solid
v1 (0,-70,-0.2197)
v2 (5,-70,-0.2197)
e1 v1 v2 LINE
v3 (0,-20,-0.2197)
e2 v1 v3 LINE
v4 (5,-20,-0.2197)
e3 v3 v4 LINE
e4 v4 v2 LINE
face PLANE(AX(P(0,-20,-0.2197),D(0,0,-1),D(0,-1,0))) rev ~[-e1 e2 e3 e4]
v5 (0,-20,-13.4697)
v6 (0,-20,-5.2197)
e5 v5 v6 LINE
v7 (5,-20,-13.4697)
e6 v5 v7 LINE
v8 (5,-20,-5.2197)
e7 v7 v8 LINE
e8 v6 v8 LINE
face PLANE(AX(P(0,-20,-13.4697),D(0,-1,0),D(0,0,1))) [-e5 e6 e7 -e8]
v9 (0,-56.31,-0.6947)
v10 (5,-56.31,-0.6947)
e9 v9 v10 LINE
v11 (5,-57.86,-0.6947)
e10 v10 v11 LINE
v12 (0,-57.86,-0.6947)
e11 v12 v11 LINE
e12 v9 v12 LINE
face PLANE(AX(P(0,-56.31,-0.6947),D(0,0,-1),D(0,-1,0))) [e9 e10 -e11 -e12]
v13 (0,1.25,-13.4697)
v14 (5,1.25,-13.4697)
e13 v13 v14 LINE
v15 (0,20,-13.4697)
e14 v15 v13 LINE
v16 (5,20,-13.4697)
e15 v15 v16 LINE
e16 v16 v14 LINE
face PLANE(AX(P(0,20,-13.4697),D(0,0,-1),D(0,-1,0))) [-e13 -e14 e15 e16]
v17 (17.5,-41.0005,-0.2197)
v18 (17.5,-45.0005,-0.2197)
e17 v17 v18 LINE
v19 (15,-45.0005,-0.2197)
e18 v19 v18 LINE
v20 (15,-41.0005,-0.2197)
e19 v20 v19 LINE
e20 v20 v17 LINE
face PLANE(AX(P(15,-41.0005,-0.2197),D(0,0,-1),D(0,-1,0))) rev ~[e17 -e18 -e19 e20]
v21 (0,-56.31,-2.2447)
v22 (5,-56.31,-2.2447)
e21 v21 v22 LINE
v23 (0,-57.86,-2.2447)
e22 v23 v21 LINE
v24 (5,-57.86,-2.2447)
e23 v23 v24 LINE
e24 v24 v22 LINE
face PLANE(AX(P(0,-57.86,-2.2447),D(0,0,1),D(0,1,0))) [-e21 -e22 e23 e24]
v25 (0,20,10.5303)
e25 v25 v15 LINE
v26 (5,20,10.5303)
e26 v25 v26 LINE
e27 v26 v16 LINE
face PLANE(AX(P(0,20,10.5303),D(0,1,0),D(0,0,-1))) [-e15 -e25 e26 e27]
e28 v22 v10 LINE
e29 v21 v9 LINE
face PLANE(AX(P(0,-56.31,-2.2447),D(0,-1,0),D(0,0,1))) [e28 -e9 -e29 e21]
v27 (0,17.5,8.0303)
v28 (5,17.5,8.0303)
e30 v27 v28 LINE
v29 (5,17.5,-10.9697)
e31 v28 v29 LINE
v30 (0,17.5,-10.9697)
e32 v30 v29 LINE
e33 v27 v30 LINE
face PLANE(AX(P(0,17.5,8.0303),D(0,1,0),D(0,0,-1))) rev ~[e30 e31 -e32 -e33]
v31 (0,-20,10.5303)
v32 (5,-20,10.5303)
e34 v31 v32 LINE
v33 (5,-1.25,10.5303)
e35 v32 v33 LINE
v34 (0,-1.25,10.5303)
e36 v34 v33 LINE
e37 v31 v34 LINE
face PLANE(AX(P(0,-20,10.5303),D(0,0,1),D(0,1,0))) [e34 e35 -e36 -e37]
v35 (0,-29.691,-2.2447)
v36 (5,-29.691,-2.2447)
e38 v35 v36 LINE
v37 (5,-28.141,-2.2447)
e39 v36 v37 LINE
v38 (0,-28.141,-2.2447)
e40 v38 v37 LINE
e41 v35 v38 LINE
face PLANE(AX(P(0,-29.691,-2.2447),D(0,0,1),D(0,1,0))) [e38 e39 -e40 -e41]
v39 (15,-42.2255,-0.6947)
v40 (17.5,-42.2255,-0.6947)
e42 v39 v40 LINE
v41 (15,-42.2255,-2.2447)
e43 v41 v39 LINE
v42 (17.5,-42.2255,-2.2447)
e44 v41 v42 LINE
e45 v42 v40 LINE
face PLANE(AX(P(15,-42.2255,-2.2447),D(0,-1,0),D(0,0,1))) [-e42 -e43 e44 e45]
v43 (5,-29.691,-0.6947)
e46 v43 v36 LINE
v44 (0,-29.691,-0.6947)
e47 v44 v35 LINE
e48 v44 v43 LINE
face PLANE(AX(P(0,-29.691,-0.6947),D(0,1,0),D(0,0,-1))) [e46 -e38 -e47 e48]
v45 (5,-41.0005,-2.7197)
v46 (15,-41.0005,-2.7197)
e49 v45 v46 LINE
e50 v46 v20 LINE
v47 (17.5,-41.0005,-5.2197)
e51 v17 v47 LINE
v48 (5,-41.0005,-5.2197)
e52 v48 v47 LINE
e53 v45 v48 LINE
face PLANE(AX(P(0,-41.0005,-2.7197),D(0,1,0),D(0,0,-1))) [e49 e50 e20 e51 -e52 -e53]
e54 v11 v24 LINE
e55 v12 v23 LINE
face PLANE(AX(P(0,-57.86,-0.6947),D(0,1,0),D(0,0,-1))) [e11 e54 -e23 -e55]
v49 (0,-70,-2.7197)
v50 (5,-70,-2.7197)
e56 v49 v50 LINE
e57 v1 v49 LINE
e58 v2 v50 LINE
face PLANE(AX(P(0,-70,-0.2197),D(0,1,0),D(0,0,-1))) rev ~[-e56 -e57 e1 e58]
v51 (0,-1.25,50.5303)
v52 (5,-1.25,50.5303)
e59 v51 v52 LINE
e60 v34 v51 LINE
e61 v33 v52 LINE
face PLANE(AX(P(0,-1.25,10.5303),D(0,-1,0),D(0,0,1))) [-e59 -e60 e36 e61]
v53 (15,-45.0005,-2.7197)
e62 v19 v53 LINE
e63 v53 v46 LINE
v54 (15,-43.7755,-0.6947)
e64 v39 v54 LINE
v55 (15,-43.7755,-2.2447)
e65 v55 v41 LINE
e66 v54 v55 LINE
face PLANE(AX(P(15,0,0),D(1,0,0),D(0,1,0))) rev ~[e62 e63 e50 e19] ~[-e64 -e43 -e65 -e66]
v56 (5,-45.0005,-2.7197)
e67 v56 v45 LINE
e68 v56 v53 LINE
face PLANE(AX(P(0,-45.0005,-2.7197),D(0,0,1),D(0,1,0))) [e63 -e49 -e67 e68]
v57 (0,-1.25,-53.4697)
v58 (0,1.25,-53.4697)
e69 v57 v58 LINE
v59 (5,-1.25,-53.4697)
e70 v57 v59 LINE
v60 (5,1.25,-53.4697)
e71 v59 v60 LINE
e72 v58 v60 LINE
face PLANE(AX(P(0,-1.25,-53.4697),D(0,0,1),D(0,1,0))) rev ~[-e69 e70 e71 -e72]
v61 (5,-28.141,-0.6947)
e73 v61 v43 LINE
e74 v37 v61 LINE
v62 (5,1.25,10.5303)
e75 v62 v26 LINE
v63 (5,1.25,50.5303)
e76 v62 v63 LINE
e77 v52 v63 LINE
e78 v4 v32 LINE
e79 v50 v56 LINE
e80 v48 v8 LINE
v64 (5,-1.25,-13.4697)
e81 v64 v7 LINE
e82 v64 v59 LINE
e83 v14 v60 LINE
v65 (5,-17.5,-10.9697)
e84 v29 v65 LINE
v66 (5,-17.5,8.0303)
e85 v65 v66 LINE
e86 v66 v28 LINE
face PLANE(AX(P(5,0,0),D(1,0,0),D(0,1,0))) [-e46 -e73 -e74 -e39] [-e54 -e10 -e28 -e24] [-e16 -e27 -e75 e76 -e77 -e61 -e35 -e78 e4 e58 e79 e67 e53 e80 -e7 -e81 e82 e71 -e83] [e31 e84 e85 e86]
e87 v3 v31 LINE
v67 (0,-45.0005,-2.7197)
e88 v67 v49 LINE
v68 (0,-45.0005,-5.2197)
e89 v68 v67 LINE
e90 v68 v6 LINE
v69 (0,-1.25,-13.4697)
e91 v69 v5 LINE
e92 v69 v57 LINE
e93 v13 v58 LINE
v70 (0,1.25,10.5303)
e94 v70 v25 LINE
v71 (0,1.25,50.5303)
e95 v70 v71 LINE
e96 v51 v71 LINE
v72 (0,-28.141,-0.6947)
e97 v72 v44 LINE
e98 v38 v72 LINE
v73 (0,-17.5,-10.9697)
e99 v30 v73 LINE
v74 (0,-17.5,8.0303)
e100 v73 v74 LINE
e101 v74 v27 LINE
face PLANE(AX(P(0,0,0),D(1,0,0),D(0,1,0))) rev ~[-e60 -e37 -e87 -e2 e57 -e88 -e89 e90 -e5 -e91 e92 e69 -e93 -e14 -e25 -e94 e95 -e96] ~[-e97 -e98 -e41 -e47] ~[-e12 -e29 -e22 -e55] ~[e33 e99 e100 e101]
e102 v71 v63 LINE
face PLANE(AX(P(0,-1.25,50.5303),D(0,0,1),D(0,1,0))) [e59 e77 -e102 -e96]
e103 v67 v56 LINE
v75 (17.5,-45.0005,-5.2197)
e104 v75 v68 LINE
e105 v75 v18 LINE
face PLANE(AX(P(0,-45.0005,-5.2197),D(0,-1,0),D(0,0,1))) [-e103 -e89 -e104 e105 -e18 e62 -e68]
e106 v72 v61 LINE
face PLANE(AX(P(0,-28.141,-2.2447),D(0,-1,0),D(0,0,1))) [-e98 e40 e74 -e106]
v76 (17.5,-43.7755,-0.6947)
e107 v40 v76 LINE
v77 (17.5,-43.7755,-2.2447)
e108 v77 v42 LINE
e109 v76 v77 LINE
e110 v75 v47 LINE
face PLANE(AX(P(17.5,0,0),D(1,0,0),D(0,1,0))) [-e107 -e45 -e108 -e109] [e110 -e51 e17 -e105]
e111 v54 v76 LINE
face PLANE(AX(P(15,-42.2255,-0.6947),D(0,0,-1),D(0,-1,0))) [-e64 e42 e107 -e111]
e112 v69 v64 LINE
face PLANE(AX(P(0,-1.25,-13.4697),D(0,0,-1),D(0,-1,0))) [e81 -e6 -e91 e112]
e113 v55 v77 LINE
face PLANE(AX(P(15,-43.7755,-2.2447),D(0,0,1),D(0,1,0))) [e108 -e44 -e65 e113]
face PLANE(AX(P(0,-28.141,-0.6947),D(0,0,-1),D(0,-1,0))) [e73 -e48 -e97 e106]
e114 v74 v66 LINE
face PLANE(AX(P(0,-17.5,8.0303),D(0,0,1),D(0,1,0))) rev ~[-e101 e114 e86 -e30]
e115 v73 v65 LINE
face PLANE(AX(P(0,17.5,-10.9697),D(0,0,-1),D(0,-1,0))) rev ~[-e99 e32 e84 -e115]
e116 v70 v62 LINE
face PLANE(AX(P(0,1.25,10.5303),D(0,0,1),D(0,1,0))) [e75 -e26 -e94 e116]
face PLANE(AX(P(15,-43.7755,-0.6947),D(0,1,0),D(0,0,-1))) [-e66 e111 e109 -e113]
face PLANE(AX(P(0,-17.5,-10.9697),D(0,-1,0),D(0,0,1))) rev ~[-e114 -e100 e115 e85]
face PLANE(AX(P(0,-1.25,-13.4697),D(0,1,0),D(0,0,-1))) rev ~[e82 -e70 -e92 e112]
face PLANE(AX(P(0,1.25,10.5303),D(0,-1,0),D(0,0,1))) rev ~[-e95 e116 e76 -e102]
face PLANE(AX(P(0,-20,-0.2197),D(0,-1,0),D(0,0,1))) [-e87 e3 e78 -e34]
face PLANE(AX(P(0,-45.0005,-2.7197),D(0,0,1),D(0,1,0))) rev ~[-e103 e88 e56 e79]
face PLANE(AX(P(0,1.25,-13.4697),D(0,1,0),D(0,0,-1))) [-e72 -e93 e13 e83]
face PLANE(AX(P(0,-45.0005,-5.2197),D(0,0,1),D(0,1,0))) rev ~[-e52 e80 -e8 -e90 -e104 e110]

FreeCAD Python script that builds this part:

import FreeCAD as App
import Part
import Sketcher
from FreeCAD import Vector


def add_polygon(sketch, points):
    """Adds a closed chain of lines whose ends are joined by coincident constraints."""
    first, n = sketch.GeometryCount, len(points)
    for a, b in zip(points, points[1:] + points[:1]):
        sketch.addGeometry(Part.LineSegment(App.Vector(*a, 0), App.Vector(*b, 0)), False)
    for i in range(n):
        sketch.addConstraint(Sketcher.Constraint("Coincident", first + i, 2, first + (i + 1) % n, 1))

doc = App.newDocument("Part")
body = doc.addObject("PartDesign::Body", "Body")

sketch1 = doc.addObject("Sketcher::SketchObject", "Sketch")
body.addObject(sketch1)
sketch1.AttachmentSupport = (doc.YZ_Plane, [""])
sketch1.MapMode = "FlatFace"
add_polygon(sketch1, [(-20, -5.2197), (-20, -13.4697), (-1.25, -13.4697), (-1.25, -53.4697), (1.25, -53.4697), (1.25, -13.4697), (20, -13.4697), (20, 10.5303), (1.25, 10.5303), (1.25, 50.5303), (-1.25, 50.5303), (-1.25, 10.5303), (-20, 10.5303), (-20, -0.2197), (-70, -0.2197), (-70, -2.7197), (-41.0005, -2.7197), (-41.0005, -5.2197)])
add_polygon(sketch1, [(17.5, -10.9697), (-17.5, -10.9697), (-17.5, 8.0303), (17.5, 8.0303)])
add_polygon(sketch1, [(-28.141, -2.2447), (-29.691, -2.2447), (-29.691, -0.6947), (-28.141, -0.6947)])
add_polygon(sketch1, [(-56.31, -0.6947), (-56.31, -2.2447), (-57.86, -2.2447), (-57.86, -0.6947)])
sketch1.addConstraint(Sketcher.Constraint("Vertical", 0))
sketch1.addConstraint(Sketcher.Constraint("Horizontal", 1))
sketch1.addConstraint(Sketcher.Constraint("Vertical", 2))
sketch1.addConstraint(Sketcher.Constraint("Horizontal", 3))
sketch1.addConstraint(Sketcher.Constraint("Vertical", 4))
sketch1.addConstraint(Sketcher.Constraint("Horizontal", 5))
sketch1.addConstraint(Sketcher.Constraint("Vertical", 6))
sketch1.addConstraint(Sketcher.Constraint("Horizontal", 7))
sketch1.addConstraint(Sketcher.Constraint("Vertical", 8))
sketch1.addConstraint(Sketcher.Constraint("Horizontal", 9))
sketch1.addConstraint(Sketcher.Constraint("Vertical", 10))
sketch1.addConstraint(Sketcher.Constraint("Horizontal", 11))
sketch1.addConstraint(Sketcher.Constraint("Vertical", 12))
sketch1.addConstraint(Sketcher.Constraint("Horizontal", 13))
sketch1.addConstraint(Sketcher.Constraint("Vertical", 14))
sketch1.addConstraint(Sketcher.Constraint("Horizontal", 15))
sketch1.addConstraint(Sketcher.Constraint("Vertical", 16))
sketch1.addConstraint(Sketcher.Constraint("Horizontal", 17))
sketch1.addConstraint(Sketcher.Constraint("Horizontal", 18))
sketch1.addConstraint(Sketcher.Constraint("Vertical", 19))
sketch1.addConstraint(Sketcher.Constraint("Horizontal", 20))
sketch1.addConstraint(Sketcher.Constraint("Vertical", 21))
sketch1.addConstraint(Sketcher.Constraint("Horizontal", 22))
sketch1.addConstraint(Sketcher.Constraint("Vertical", 23))
sketch1.addConstraint(Sketcher.Constraint("Horizontal", 24))
sketch1.addConstraint(Sketcher.Constraint("Vertical", 25))
sketch1.addConstraint(Sketcher.Constraint("Vertical", 26))
sketch1.addConstraint(Sketcher.Constraint("Horizontal", 27))
sketch1.addConstraint(Sketcher.Constraint("Vertical", 28))
sketch1.addConstraint(Sketcher.Constraint("Horizontal", 29))
sketch1.addConstraint(Sketcher.Constraint("Symmetric", 1, 2, 4, 2, -2))
sketch1.addConstraint(Sketcher.Constraint("Symmetric", 7, 2, 10, 2, -2))
sketch1.addConstraint(Sketcher.Constraint("Horizontal", 25, 2, 26, 2))
sketch1.addConstraint(Sketcher.Constraint("Horizontal", 24, 2, 28, 2))
sketch1.addConstraint(Sketcher.Constraint("Vertical", 4, 2, 7, 2))
sketch1.addConstraint(Sketcher.Constraint("Vertical", 0, 2, 11, 2))
sketch1.addConstraint(Sketcher.Constraint("Equal", 1, 5))
sketch1.addConstraint(Sketcher.Constraint("Equal", 24, 27))
sketch1.addConstraint(Sketcher.Constraint("Equal", 4, 8))
sketch1.addConstraint(Sketcher.Constraint("Equal", 9, 14))
sketch1.addConstraint(Sketcher.Constraint("Equal", 14, 16))
sketch1.addConstraint(Sketcher.Constraint("Equal", 29, 23))
sketch1.addConstraint(Sketcher.Constraint("DistanceX", 13, 2, 13, 1, 50.0))
sketch1.addConstraint(Sketcher.Constraint("DistanceX", 18, 2, 18, 1, 35.0))
sketch1.addConstraint(Sketcher.Constraint("DistanceY", 2, 2, 2, 1, 40.0))
sketch1.addConstraint(Sketcher.Constraint("DistanceY", 19, 1, 19, 2, 19.0))
sketch1.addConstraint(Sketcher.Constraint("DistanceX", 3, 1, 3, 2, 2.5))
sketch1.addConstraint(Sketcher.Constraint("DistanceX", 0, 2, 5, 2, 40.0))
sketch1.addConstraint(Sketcher.Constraint("DistanceX", 22, 2, 22, 1, 1.55))
sketch1.addConstraint(Sketcher.Constraint("DistanceX", 18, 2, -1, 1, 17.5))
sketch1.addConstraint(Sketcher.Constraint("DistanceY", 0, 2, 18, 2, 2.5))
sketch1.addConstraint(Sketcher.Constraint("DistanceY", 19, 2, 11, 2, 2.5))
sketch1.addConstraint(Sketcher.Constraint("DistanceY", 0, 2, 0, 1, 8.25))
sketch1.addConstraint(Sketcher.Constraint("DistanceY", -1, 1, 19, 2, 8.0303))
sketch1.addConstraint(Sketcher.Constraint("DistanceX", 26, 2, -1, 1, 56.31))
sketch1.addConstraint(Sketcher.Constraint("DistanceX", 15, 1, 15, 2, 28.9995))
sketch1.addConstraint(Sketcher.Constraint("DistanceX", 22, 2, -1, 1, 29.691))
sketch1.addConstraint(Sketcher.Constraint("DistanceY", 22, 2, 12, 2, 2.025))
pad1 = doc.addObject("PartDesign::Pad", "Pad")
body.addObject(pad1)
pad1.Profile = sketch1
pad1.Length = 5

sketch2 = doc.addObject("Sketcher::SketchObject", "Sketch001")
body.addObject(sketch2)
sketch2.AttachmentSupport = (doc.YZ_Plane, [""])
sketch2.MapMode = "FlatFace"
add_polygon(sketch2, [(-45.0005, -5.2197), (-41.0005, -5.2197), (-41.0005, -2.7197), (-45.0005, -2.7197)])
sketch2.addConstraint(Sketcher.Constraint("Horizontal", 0))
sketch2.addConstraint(Sketcher.Constraint("Vertical", 1))
sketch2.addConstraint(Sketcher.Constraint("Horizontal", 2))
sketch2.addConstraint(Sketcher.Constraint("Vertical", 3))
sketch2.addConstraint(Sketcher.Constraint("DistanceY", 1, 1, 1, 2, 2.5))
sketch2.addConstraint(Sketcher.Constraint("DistanceX", 0, 1, 0, 2, 4.0))
sketch2.addConstraint(Sketcher.Constraint("DistanceX", 0, 2, -1, 1, 41.0005))
sketch2.addConstraint(Sketcher.Constraint("DistanceY", 0, 2, -1, 1, 5.2197))
pad2 = doc.addObject("PartDesign::Pad", "Pad001")
body.addObject(pad2)
pad2.Profile = sketch2
pad2.Length = 15

sketch3 = doc.addObject("Sketcher::SketchObject", "Sketch002")
body.addObject(sketch3)
sketch3.AttachmentSupport = (doc.YZ_Plane, [""])
sketch3.MapMode = "FlatFace"
sketch3.AttachmentOffset = App.Placement(Vector(0, 0, 15), App.Rotation())
add_polygon(sketch3, [(-45.0005, -5.2197), (-41.0005, -5.2197), (-41.0005, -0.2197), (-45.0005, -0.2197)])
add_polygon(sketch3, [(-42.2255, -0.6947), (-42.2255, -2.2447), (-43.7755, -2.2447), (-43.7755, -0.6947)])
sketch3.addConstraint(Sketcher.Constraint("Horizontal", 0))
sketch3.addConstraint(Sketcher.Constraint("Vertical", 1))
sketch3.addConstraint(Sketcher.Constraint("Horizontal", 2))
sketch3.addConstraint(Sketcher.Constraint("Vertical", 3))
sketch3.addConstraint(Sketcher.Constraint("Vertical", 4))
sketch3.addConstraint(Sketcher.Constraint("Horizontal", 5))
sketch3.addConstraint(Sketcher.Constraint("Vertical", 6))
sketch3.addConstraint(Sketcher.Constraint("Horizontal", 7))
sketch3.addConstraint(Sketcher.Constraint("Equal", 7, 4))
sketch3.addConstraint(Sketcher.Constraint("DistanceX", 5, 2, 5, 1, 1.55))
sketch3.addConstraint(Sketcher.Constraint("DistanceX", 0, 1, 0, 2, 4.0))
sketch3.addConstraint(Sketcher.Constraint("DistanceY", 1, 1, 1, 2, 5.0))
sketch3.addConstraint(Sketcher.Constraint("DistanceX", 4, 2, 1, 2, 1.225))
sketch3.addConstraint(Sketcher.Constraint("DistanceY", 4, 2, 1, 2, 2.025))
sketch3.addConstraint(Sketcher.Constraint("DistanceX", 0, 2, -1, 1, 41.0005))
sketch3.addConstraint(Sketcher.Constraint("DistanceY", 0, 2, -1, 1, 5.2197))
pad3 = doc.addObject("PartDesign::Pad", "Pad002")
body.addObject(pad3)
pad3.Profile = sketch3
pad3.Length = 2.5

doc.recompute()
